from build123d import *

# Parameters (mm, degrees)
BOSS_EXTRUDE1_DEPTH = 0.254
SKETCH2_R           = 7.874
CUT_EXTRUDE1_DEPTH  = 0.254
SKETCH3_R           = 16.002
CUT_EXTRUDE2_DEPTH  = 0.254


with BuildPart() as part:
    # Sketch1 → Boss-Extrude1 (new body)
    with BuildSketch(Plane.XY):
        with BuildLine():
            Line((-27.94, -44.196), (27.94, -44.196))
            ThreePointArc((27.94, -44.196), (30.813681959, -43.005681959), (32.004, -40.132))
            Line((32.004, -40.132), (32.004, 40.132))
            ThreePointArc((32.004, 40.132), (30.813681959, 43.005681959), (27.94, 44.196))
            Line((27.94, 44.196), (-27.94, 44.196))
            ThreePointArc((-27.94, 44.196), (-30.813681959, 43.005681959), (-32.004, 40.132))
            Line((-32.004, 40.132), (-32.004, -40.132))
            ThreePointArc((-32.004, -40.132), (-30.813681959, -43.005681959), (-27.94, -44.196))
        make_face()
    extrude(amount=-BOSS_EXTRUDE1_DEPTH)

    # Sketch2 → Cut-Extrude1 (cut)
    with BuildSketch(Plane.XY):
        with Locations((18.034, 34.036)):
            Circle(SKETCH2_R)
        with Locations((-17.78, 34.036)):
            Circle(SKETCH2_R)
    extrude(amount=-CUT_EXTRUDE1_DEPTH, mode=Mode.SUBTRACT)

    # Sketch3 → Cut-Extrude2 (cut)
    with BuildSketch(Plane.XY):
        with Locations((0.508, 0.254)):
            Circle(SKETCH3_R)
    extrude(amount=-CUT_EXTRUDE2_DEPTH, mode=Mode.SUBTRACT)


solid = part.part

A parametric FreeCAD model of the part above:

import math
import FreeCAD as App
import Part
import Sketcher
Q = App.Units.Quantity

doc = App.newDocument("Part")
body = doc.addObject("PartDesign::Body", "Body")

# Sketch on XY plane
sketch1 = body.newObject("Sketcher::SketchObject", "Sketch")
sketch1.AttachmentSupport = (doc.getObject("XY_Plane"), [""])
sketch1.MapMode = "FlatFace"
sketch1.addGeometry(Part.LineSegment(App.Vector(-27.94, -44.196, 0), App.Vector(27.94, -44.196, 0)), False)
sketch1.addGeometry(Part.ArcOfCircle(Part.Circle(App.Vector(27.94, -40.132, 0), App.Vector(0, 0, 1), 4.064), math.radians(-90), math.radians(0)), False)
sketch1.addGeometry(Part.LineSegment(App.Vector(32.004, -40.132, 0), App.Vector(32.004, 40.132, 0)), False)
sketch1.addGeometry(Part.ArcOfCircle(Part.Circle(App.Vector(27.94, 40.132, 0), App.Vector(0, 0, 1), 4.064), math.radians(0), math.radians(90)), False)
sketch1.addGeometry(Part.LineSegment(App.Vector(27.94, 44.196, 0), App.Vector(-27.94, 44.196, 0)), False)
sketch1.addGeometry(Part.ArcOfCircle(Part.Circle(App.Vector(-27.94, 40.132, 0), App.Vector(0, 0, 1), 4.064), math.radians(90), math.radians(180)), False)
sketch1.addGeometry(Part.LineSegment(App.Vector(-32.004, 40.132, 0), App.Vector(-32.004, -40.132, 0)), False)
sketch1.addGeometry(Part.ArcOfCircle(Part.Circle(App.Vector(-27.94, -40.132, 0), App.Vector(0, 0, 1), 4.064), math.radians(180), math.radians(270)), False)
sketch1.addConstraint(Sketcher.Constraint("Tangent", 0, 2, 1, 1))
sketch1.addConstraint(Sketcher.Constraint("Tangent", 1, 2, 2, 1))
sketch1.addConstraint(Sketcher.Constraint("Tangent", 2, 2, 3, 1))
sketch1.addConstraint(Sketcher.Constraint("Tangent", 3, 2, 4, 1))
sketch1.addConstraint(Sketcher.Constraint("Tangent", 4, 2, 5, 1))
sketch1.addConstraint(Sketcher.Constraint("Tangent", 5, 2, 6, 1))
sketch1.addConstraint(Sketcher.Constraint("Tangent", 6, 2, 7, 1))
sketch1.addConstraint(Sketcher.Constraint("Tangent", 7, 2, 0, 1))
sketch1.addConstraint(Sketcher.Constraint("Horizontal", 0))
sketch1.addConstraint(Sketcher.Constraint("Vertical", 2))
sketch1.addConstraint(Sketcher.Constraint("Horizontal", 4))
sketch1.addConstraint(Sketcher.Constraint("Vertical", 6))
sketch1.addConstraint(Sketcher.Constraint("Equal", 1, 3))
sketch1.addConstraint(Sketcher.Constraint("Equal", 3, 5))
sketch1.addConstraint(Sketcher.Constraint("Equal", 5, 7))
sketch1.addConstraint(Sketcher.Constraint("Symmetric", 1, 3, 5, 3, -1, 1))
sketch1.addConstraint(Sketcher.Constraint("Radius", 1, Q("0.16 in")))
sketch1.addConstraint(Sketcher.Constraint("DistanceX", 0, 1, 0, 2, Q("2.2 in")))
sketch1.addConstraint(Sketcher.Constraint("DistanceY", 2, 1, 2, 2, Q("3.16 in")))
pad1 = body.newObject("PartDesign::Pad", "Pad")
pad1.Profile = sketch1
pad1.Length = Q("0.01 in")
pad1.Reversed = True

# Sketch on XY plane
sketch2 = body.newObject("Sketcher::SketchObject", "Sketch001")
sketch2.AttachmentSupport = (doc.getObject("XY_Plane"), [""])
sketch2.MapMode = "FlatFace"
sketch2.addGeometry(Part.Circle(App.Vector(18.034, 34.036, 0), App.Vector(0, 0, 1), 7.874), False)
sketch2.addGeometry(Part.Circle(App.Vector(-17.78, 34.036, 0), App.Vector(0, 0, 1), 7.874), False)
sketch2.addConstraint(Sketcher.Constraint("Equal", 0, 1))
sketch2.addConstraint(Sketcher.Constraint("Horizontal", 0, 3, 1, 3))
sketch2.addConstraint(Sketcher.Constraint("Diameter", 0, Q("0.62 in")))
sketch2.addConstraint(Sketcher.Constraint("DistanceX", 1, 3, -1, 1, Q("0.7 in")))
sketch2.addConstraint(Sketcher.Constraint("DistanceX", -1, 1, 0, 3, Q("0.71 in")))
sketch2.addConstraint(Sketcher.Constraint("DistanceY", -1, 1, 0, 3, Q("1.34 in")))
pocket1 = body.newObject("PartDesign::Pocket", "Pocket")
pocket1.Profile = sketch2
pocket1.Length = Q("0.01 in")

# Sketch on XY plane
sketch3 = body.newObject("Sketcher::SketchObject", "Sketch002")
sketch3.AttachmentSupport = (doc.getObject("XY_Plane"), [""])
sketch3.MapMode = "FlatFace"
sketch3.addGeometry(Part.Circle(App.Vector(0.508, 0.254, 0), App.Vector(0, 0, 1), 16.002), False)
sketch3.addConstraint(Sketcher.Constraint("Diameter", 0, Q("1.26 in")))
sketch3.addConstraint(Sketcher.Constraint("DistanceX", -1, 1, 0, 3, Q("0.02 in")))
sketch3.addConstraint(Sketcher.Constraint("DistanceY", -1, 1, 0, 3, Q("0.01 in")))
pocket2 = body.newObject("PartDesign::Pocket", "Pocket001")
pocket2.Profile = sketch3
pocket2.Length = Q("0.01 in")

doc.recompute()
